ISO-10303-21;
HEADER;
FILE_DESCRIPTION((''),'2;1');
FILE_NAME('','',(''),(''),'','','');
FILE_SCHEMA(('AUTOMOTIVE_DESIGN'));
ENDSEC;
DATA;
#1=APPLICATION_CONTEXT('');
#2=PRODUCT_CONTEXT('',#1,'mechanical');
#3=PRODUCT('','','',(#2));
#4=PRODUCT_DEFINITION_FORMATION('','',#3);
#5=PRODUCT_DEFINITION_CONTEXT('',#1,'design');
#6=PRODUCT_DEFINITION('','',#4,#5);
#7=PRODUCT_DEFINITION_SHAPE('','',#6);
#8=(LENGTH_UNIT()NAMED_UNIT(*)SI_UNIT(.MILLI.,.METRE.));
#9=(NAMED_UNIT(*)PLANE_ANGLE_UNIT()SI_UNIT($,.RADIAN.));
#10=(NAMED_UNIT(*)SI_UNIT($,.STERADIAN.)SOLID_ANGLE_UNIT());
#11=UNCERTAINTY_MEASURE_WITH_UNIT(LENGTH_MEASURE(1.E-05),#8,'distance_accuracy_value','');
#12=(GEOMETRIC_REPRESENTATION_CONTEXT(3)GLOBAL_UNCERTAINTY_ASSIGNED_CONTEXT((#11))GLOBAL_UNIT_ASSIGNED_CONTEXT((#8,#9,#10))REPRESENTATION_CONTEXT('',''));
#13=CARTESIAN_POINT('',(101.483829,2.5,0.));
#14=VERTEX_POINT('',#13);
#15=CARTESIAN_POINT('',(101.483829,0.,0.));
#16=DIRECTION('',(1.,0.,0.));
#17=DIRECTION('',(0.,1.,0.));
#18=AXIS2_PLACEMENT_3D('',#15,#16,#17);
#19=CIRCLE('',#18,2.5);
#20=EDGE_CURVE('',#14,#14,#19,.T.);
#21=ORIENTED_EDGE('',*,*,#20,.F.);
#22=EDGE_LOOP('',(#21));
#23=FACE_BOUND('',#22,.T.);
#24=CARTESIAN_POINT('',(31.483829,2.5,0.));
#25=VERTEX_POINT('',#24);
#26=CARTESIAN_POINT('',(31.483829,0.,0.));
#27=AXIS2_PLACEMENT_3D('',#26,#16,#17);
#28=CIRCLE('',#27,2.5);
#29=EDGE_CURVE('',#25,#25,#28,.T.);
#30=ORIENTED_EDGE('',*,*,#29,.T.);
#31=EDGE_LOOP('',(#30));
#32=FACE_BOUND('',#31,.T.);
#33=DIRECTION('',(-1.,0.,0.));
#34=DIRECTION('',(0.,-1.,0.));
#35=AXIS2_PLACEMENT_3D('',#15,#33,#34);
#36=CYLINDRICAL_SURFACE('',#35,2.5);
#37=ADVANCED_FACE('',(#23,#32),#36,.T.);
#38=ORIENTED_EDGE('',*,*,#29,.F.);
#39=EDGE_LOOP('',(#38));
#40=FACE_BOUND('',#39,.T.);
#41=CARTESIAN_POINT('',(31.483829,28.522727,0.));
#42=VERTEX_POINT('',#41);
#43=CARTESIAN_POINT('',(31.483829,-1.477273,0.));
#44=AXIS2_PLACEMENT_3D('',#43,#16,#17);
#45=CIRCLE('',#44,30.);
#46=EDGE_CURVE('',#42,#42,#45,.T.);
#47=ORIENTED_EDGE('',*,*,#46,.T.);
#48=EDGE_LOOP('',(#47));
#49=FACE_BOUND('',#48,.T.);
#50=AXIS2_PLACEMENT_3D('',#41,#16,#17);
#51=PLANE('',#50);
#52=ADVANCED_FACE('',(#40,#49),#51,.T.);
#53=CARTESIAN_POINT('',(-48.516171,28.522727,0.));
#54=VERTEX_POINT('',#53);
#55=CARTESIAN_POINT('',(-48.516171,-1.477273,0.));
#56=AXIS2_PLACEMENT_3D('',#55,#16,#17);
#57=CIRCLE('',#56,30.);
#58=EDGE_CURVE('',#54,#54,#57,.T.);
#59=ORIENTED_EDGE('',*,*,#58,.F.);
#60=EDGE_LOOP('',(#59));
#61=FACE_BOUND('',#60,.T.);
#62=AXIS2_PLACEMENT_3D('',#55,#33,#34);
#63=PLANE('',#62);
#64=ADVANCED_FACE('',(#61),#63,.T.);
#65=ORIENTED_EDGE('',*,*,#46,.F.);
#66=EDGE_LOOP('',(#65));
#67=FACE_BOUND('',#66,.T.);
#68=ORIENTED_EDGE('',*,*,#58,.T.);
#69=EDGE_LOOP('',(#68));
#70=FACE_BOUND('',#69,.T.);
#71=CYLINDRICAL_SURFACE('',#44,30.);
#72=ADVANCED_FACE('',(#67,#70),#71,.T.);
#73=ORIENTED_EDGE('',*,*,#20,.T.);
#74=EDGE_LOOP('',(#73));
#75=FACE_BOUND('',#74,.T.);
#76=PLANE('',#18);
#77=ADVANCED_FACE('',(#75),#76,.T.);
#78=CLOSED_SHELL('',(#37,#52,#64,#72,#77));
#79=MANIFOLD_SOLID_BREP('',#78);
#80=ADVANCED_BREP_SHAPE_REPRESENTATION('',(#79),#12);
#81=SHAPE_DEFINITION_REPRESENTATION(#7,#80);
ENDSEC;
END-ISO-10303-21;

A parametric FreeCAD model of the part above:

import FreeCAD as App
import Part
import Sketcher


def add_polygon(sketch, points):
    """Adds a closed chain of lines whose ends are joined by coincident constraints."""
    first, n = sketch.GeometryCount, len(points)
    for a, b in zip(points, points[1:] + points[:1]):
        sketch.addGeometry(Part.LineSegment(App.Vector(*a, 0), App.Vector(*b, 0)), False)
    for i in range(n):
        sketch.addConstraint(Sketcher.Constraint("Coincident", first + i, 2, first + (i + 1) % n, 1))

doc = App.newDocument("Part")
params = doc.addObject("Spreadsheet::Sheet", "Params")
for row, (alias, value) in enumerate([
    ("sketch1_width", "80 mm"),
    ("sketch1_height", "30 mm"),
    ("revolution_angle", "360 deg"),
    ("sketch2_diameter", "5 mm"),
    ("pad1_length", "70 mm"),
], start=1):
    params.set(f"A{row}", alias)
    params.set(f"B{row}", "=" + value)
    params.setAlias(f"B{row}", alias)

body = doc.addObject("PartDesign::Body", "Body")

# Sketch on XY plane
sketch1 = doc.addObject("Sketcher::SketchObject", "Sketch")
body.addObject(sketch1)
sketch1.AttachmentSupport = (doc.XY_Plane, [""])
sketch1.MapMode = "FlatFace"
add_polygon(sketch1, [(-48.516171, 28.522727), (-48.516171, -1.477273), (31.483829, -1.477273), (31.483829, 28.522727)])  # lines 0-3
sketch1.addGeometry(Part.LineSegment(App.Vector(31.483829, -1.477273, 0), App.Vector(-48.516171, -1.477273, 0)), True)  # axis
sketch1.addConstraint([
    Sketcher.Constraint("Vertical", 0),
    Sketcher.Constraint("Horizontal", 1),
    Sketcher.Constraint("Vertical", 2),
    Sketcher.Constraint("Horizontal", 3),
    Sketcher.Constraint("Horizontal", 4),
    Sketcher.Constraint("Coincident", 4, 1, 1, 2),
    Sketcher.Constraint("Vertical", 3, 2, 4, 2),
    Sketcher.Constraint("DistanceX", 1, 1, 1, 2, 80.0),
    Sketcher.Constraint("DistanceY", 0, 2, 0, 1, 30.0),
    Sketcher.Constraint("DistanceX", 0, 2, -1, 1, 48.516171),
    Sketcher.Constraint("DistanceY", 0, 2, -1, 1, 1.477273),
])
sketch1.setExpression("Constraints[11]", "Params.sketch1_width")
sketch1.setExpression("Constraints[12]", "Params.sketch1_height")
revolution = doc.addObject("PartDesign::Revolution", "Revolution")
body.addObject(revolution)
revolution.Profile = sketch1
revolution.ReferenceAxis = (sketch1, ["Axis0"])
revolution.setExpression("Angle", "Params.revolution_angle")

# Sketch on YZ plane
sketch2 = doc.addObject("Sketcher::SketchObject", "Sketch001")
body.addObject(sketch2)
sketch2.AttachmentSupport = (doc.YZ_Plane, [""])
sketch2.MapMode = "FlatFace"
sketch2.AttachmentOffset = App.Placement(App.Vector(0, 0, 31.483829), App.Rotation())
sketch2.addGeometry(Part.Circle(App.Vector(0, 0, 0), App.Vector(0, 0, 1), 2.5), False)
sketch2.addConstraint([
    Sketcher.Constraint("Coincident", 0, 3, -1, 1),
    Sketcher.Constraint("Diameter", 0, 5.0),
])
sketch2.setExpression("Constraints[1]", "Params.sketch2_diameter")
pad1 = doc.addObject("PartDesign::Pad", "Pad")
body.addObject(pad1)
pad1.Profile = sketch2
pad1.setExpression("Length", "Params.pad1_length")

doc.recompute()
